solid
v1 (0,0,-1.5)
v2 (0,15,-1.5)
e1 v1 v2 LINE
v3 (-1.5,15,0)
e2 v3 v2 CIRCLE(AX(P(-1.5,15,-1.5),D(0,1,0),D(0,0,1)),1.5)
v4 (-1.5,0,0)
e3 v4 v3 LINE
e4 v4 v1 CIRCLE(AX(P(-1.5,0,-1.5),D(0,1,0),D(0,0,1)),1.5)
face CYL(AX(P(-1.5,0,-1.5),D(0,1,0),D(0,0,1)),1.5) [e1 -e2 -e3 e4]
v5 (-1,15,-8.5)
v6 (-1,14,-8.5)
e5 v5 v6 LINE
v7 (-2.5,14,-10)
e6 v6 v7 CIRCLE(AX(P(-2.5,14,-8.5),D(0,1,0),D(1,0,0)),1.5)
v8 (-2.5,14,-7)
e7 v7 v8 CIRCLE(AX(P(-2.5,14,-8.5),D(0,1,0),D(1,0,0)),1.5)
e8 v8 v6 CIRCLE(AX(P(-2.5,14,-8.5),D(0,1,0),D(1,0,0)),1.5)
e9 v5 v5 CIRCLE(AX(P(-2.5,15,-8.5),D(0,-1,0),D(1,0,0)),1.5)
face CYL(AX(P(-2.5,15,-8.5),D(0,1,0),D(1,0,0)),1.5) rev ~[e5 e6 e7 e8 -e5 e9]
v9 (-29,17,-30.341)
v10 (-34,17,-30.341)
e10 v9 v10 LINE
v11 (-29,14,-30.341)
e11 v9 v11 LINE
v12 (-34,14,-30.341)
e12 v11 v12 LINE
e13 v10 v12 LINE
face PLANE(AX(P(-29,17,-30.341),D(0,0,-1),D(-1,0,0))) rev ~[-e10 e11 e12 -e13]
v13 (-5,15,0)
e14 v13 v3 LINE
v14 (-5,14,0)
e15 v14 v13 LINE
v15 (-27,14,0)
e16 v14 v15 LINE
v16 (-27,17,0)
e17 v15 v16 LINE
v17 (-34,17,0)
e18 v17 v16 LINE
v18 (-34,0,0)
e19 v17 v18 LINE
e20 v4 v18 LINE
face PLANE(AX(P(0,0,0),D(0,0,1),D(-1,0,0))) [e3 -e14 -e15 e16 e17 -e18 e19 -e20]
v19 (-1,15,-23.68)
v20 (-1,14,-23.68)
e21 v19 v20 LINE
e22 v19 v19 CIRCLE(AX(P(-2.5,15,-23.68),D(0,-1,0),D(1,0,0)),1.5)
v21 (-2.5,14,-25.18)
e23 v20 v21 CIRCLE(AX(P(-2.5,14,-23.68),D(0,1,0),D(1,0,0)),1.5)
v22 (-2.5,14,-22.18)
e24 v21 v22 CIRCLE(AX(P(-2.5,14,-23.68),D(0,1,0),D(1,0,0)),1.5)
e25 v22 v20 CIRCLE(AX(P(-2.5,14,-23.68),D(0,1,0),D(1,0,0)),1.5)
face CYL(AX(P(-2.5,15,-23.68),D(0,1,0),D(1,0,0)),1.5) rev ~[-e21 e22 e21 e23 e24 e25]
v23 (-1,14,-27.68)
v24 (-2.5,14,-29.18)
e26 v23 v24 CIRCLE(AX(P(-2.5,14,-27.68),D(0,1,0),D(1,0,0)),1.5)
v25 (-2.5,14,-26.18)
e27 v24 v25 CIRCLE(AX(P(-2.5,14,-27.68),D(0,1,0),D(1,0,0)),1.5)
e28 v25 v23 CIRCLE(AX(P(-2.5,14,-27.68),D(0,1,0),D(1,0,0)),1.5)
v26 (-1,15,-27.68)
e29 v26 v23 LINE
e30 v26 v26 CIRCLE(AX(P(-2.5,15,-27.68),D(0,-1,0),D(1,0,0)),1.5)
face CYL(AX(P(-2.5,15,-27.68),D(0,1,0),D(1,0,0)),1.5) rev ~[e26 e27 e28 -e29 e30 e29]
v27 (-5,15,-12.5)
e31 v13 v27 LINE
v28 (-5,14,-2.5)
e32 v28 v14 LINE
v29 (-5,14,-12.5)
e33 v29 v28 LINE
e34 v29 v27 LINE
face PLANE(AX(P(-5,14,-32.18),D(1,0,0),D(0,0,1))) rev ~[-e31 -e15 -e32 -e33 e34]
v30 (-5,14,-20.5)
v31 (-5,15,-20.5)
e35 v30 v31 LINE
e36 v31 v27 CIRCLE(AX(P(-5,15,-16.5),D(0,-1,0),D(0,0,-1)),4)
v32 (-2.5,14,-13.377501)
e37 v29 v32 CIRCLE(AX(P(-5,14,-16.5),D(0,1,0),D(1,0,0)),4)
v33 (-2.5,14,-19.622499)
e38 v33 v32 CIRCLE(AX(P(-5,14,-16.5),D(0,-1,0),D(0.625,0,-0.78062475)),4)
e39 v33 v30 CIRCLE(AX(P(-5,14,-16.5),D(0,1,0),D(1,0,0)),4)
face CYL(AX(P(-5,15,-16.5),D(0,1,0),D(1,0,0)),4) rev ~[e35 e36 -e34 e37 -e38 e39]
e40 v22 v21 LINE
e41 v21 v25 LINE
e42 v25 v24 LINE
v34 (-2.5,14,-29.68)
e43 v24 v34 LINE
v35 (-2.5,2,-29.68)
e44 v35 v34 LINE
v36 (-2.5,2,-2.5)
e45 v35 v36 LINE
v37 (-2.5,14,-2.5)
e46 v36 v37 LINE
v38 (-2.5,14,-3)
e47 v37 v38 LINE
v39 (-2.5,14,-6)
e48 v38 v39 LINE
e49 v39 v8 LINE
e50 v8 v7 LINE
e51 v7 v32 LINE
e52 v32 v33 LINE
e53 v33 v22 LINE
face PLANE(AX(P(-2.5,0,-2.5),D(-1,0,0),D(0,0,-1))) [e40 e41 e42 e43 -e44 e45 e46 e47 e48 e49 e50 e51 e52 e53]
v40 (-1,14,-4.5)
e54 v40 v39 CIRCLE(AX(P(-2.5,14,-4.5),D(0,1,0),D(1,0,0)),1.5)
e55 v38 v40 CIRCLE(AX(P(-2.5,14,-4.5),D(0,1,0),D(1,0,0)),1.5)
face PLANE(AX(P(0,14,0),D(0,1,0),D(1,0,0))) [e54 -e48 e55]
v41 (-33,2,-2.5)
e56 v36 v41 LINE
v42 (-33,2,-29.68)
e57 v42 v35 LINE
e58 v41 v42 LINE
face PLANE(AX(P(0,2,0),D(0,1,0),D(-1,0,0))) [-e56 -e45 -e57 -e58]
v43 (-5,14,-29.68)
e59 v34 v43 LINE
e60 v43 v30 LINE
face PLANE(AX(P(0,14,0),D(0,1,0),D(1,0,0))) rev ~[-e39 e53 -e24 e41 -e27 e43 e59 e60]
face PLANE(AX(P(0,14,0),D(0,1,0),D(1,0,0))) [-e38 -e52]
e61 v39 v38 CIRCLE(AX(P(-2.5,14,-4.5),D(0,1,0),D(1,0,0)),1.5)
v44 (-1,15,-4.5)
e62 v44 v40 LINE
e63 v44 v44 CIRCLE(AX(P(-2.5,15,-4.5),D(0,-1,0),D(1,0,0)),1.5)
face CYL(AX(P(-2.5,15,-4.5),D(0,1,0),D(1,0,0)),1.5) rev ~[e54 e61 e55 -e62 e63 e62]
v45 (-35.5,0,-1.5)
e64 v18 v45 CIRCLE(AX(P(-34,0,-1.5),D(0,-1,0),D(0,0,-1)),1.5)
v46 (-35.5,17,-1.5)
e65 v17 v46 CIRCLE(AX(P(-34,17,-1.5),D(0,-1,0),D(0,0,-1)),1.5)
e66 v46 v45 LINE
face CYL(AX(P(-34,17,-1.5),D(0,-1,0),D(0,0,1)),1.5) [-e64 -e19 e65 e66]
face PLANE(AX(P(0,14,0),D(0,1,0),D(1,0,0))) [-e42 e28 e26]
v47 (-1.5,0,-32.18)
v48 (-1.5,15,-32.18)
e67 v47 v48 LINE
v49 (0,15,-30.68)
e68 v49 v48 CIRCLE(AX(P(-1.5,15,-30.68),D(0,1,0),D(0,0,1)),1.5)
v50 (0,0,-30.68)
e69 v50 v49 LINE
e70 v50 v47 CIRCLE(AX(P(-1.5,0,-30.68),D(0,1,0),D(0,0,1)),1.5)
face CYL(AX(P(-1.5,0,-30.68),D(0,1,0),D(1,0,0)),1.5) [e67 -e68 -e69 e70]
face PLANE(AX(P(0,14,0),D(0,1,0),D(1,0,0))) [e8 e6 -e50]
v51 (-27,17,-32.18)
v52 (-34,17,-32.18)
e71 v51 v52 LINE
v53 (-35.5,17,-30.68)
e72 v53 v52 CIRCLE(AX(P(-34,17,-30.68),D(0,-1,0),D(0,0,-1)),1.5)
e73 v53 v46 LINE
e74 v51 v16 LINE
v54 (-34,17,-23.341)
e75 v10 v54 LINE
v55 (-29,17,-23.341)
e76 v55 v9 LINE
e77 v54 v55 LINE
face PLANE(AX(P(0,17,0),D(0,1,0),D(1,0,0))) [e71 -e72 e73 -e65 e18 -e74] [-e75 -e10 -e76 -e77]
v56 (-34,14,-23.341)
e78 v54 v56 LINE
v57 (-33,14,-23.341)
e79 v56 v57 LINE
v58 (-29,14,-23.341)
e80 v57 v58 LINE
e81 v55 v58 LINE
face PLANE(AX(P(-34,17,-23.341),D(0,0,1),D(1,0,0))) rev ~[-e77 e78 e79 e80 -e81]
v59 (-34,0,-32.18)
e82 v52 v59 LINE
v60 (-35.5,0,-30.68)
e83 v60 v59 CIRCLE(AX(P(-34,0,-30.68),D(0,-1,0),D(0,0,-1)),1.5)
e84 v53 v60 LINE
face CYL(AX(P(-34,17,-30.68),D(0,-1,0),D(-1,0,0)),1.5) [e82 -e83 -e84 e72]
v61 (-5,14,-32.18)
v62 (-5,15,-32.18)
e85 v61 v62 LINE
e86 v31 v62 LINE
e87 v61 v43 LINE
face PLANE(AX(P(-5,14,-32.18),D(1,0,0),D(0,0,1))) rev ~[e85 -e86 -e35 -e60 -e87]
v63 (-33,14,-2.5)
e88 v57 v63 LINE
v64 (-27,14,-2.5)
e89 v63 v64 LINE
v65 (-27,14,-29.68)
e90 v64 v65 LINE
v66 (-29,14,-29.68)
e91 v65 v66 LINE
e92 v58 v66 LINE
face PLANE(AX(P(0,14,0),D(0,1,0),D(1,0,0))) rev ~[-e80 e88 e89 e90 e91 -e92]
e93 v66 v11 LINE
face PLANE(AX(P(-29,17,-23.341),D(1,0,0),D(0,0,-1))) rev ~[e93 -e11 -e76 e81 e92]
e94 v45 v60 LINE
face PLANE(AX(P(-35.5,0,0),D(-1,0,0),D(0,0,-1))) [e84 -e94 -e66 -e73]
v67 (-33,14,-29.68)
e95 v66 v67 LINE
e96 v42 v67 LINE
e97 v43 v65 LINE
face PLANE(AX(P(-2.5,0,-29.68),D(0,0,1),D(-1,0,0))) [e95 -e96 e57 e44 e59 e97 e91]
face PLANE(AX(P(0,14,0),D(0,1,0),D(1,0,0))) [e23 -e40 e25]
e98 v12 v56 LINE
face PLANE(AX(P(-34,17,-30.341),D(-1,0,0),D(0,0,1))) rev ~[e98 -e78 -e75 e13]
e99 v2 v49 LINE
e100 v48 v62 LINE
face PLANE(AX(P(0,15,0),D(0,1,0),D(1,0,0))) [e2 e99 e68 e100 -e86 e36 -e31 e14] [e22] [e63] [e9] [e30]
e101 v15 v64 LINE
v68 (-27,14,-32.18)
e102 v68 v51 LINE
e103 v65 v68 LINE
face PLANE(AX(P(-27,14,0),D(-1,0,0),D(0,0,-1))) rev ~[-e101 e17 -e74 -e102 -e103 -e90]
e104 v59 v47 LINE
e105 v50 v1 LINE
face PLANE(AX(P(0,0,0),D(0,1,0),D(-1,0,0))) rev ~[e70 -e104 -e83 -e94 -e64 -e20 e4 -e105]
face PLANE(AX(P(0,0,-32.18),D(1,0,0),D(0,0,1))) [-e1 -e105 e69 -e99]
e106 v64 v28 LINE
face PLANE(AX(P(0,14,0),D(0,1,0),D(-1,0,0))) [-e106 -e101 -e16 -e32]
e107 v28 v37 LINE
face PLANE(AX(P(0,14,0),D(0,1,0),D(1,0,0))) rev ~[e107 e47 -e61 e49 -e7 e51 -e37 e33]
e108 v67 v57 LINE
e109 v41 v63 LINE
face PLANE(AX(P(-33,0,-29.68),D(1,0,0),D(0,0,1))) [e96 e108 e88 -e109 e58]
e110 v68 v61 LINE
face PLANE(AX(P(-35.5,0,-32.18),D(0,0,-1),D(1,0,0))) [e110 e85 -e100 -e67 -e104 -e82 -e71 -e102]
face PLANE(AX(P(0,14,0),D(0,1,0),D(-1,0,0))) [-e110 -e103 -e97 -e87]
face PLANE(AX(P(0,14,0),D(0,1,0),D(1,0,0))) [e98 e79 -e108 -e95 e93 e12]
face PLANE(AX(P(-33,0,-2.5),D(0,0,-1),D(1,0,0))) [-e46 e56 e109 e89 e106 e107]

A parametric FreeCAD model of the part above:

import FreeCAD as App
import Part
import Sketcher
Q = App.Units.Quantity


def edges_at(feature, points):
    """Names of the edges that pass closest to the given points."""
    edges = feature.Shape.Edges
    near = lambda p: min(range(len(edges)), key=lambda i: edges[i].distToShape(Part.Vertex(*p))[0])
    return sorted({f"Edge{near(p) + 1}" for p in points})

doc = App.newDocument("Part")
params = doc.addObject("Spreadsheet::Sheet", "Params")
for row, (alias, value) in enumerate([
    ("sketch1_width", "35.5 mm"),
    ("sketch1_height", "32.18 mm"),
    ("pad1_length", "2 mm"),
    ("sketch2_width", "35.5 mm"),
    ("sketch2_height", "32.18 mm"),
    ("pad2_length", "14 mm"),
    ("sketch3_width", "8.5 mm"),
    ("sketch3_height", "32.18 mm"),
    ("pad3_length", "3 mm"),
    ("sketch4_width", "5 mm"),
    ("sketch4_height", "7 mm"),
    ("pocket1_length", "3 mm"),
    ("sketch5_width", "5 mm"),
    ("sketch5_height", "32.18 mm"),
    ("pad4_length", "1 mm"),
    ("sketch6_diameter", "8 mm"),
    ("sketch6_diameter2", "3 mm"),
    ("pocket2_length", "1 mm"),
    ("fillet_radius", "1.5 mm"),
], start=1):
    params.set(f"A{row}", alias)
    params.set(f"B{row}", "=" + value)
    params.setAlias(f"B{row}", alias)

body = doc.addObject("PartDesign::Body", "Body")

sketch1 = body.newObject("Sketcher::SketchObject", "Sketch")
sketch1.AttachmentSupport = (doc.getObject("XZ_Plane"), [""])
sketch1.MapMode = "FlatFace"
sketch1.addGeometry([
    Part.LineSegment(App.Vector(-35.5, 0, 0), App.Vector(0, 0, 0)),
    Part.LineSegment(App.Vector(0, 0, 0), App.Vector(0, -32.18, 0)),
    Part.LineSegment(App.Vector(0, -32.18, 0), App.Vector(-35.5, -32.18, 0)),
    Part.LineSegment(App.Vector(-35.5, -32.18, 0), App.Vector(-35.5, 0, 0)),
], False)
sketch1.addConstraint([
    Sketcher.Constraint("Coincident", 0, 2, 1, 1),
    Sketcher.Constraint("Coincident", 1, 2, 2, 1),
    Sketcher.Constraint("Coincident", 2, 2, 3, 1),
    Sketcher.Constraint("Coincident", 3, 2, 0, 1),
    Sketcher.Constraint("Horizontal", 0),
    Sketcher.Constraint("Vertical", 1),
    Sketcher.Constraint("Horizontal", 2),
    Sketcher.Constraint("Vertical", 3),
    Sketcher.Constraint("Coincident", 0, 2, -1, 1),
    Sketcher.Constraint("DistanceX", 0, 1, 0, 2, Q("35.5 mm")),
    Sketcher.Constraint("DistanceY", 1, 2, 1, 1, Q("32.18 mm")),
])
sketch1.setExpression("Constraints[9]", "Params.sketch1_width")
sketch1.setExpression("Constraints[10]", "Params.sketch1_height")
pad1 = body.newObject("PartDesign::Pad", "Pad")
pad1.Profile = sketch1
pad1.setExpression("Length", "Params.pad1_length")
pad1.Reversed = True

sketch2 = body.newObject("Sketcher::SketchObject", "Sketch001")
sketch2.AttachmentSupport = (doc.getObject("XZ_Plane"), [""])
sketch2.MapMode = "FlatFace"
sketch2.addGeometry([
    Part.LineSegment(App.Vector(-35.5, 0, 0), App.Vector(0, 0, 0)),
    Part.LineSegment(App.Vector(0, 0, 0), App.Vector(0, -32.18, 0)),
    Part.LineSegment(App.Vector(0, -32.18, 0), App.Vector(-35.5, -32.18, 0)),
    Part.LineSegment(App.Vector(-35.5, -32.18, 0), App.Vector(-35.5, 0, 0)),
    Part.LineSegment(App.Vector(-2.5, -2.5, 0), App.Vector(-33, -2.5, 0)),
    Part.LineSegment(App.Vector(-33, -2.5, 0), App.Vector(-33, -29.68, 0)),
    Part.LineSegment(App.Vector(-33, -29.68, 0), App.Vector(-2.5, -29.68, 0)),
    Part.LineSegment(App.Vector(-2.5, -29.68, 0), App.Vector(-2.5, -2.5, 0)),
], False)
sketch2.addConstraint([
    Sketcher.Constraint("Coincident", 0, 2, 1, 1),
    Sketcher.Constraint("Coincident", 1, 2, 2, 1),
    Sketcher.Constraint("Coincident", 2, 2, 3, 1),
    Sketcher.Constraint("Coincident", 3, 2, 0, 1),
    Sketcher.Constraint("Coincident", 4, 2, 5, 1),
    Sketcher.Constraint("Coincident", 5, 2, 6, 1),
    Sketcher.Constraint("Coincident", 6, 2, 7, 1),
    Sketcher.Constraint("Coincident", 7, 2, 4, 1),
    Sketcher.Constraint("Horizontal", 0),
    Sketcher.Constraint("Vertical", 1),
    Sketcher.Constraint("Horizontal", 2),
    Sketcher.Constraint("Vertical", 3),
    Sketcher.Constraint("Horizontal", 4),
    Sketcher.Constraint("Vertical", 5),
    Sketcher.Constraint("Horizontal", 6),
    Sketcher.Constraint("Vertical", 7),
    Sketcher.Constraint("Coincident", 0, 2, -1, 1),
    Sketcher.Constraint("DistanceX", 0, 1, 0, 2, Q("35.5 mm")),
    Sketcher.Constraint("DistanceY", 1, 2, 1, 1, Q("32.18 mm")),
    Sketcher.Constraint("DistanceY", 4, 2, -1, 1, Q("2.5 mm")),
    Sketcher.Constraint("DistanceX", 6, 2, -1, 1, Q("2.5 mm")),
    Sketcher.Constraint("DistanceX", 3, 2, 4, 2, Q("2.5 mm")),
    Sketcher.Constraint("DistanceY", 2, 2, 5, 2, Q("2.5 mm")),
])
sketch2.setExpression("Constraints[17]", "Params.sketch2_width")
sketch2.setExpression("Constraints[18]", "Params.sketch2_height")
pad2 = body.newObject("PartDesign::Pad", "Pad001")
pad2.Profile = sketch2
pad2.setExpression("Length", "Params.pad2_length")
pad2.Reversed = True

sketch3 = body.newObject("Sketcher::SketchObject", "Sketch002")
sketch3.AttachmentSupport = (doc.getObject("XZ_Plane"), [""])
sketch3.MapMode = "FlatFace"
sketch3.AttachmentOffset = App.Placement(App.Vector(0, 0, -14), App.Rotation())
sketch3.addGeometry([
    Part.LineSegment(App.Vector(-27, 0, 0), App.Vector(-27, -32.18, 0)),
    Part.LineSegment(App.Vector(-27, -32.18, 0), App.Vector(-35.5, -32.18, 0)),
    Part.LineSegment(App.Vector(-35.5, -32.18, 0), App.Vector(-35.5, 0, 0)),
    Part.LineSegment(App.Vector(-35.5, 0, 0), App.Vector(-27, 0, 0)),
], False)
sketch3.addConstraint([
    Sketcher.Constraint("Coincident", 0, 2, 1, 1),
    Sketcher.Constraint("Coincident", 1, 2, 2, 1),
    Sketcher.Constraint("Coincident", 2, 2, 3, 1),
    Sketcher.Constraint("Coincident", 3, 2, 0, 1),
    Sketcher.Constraint("Vertical", 0),
    Sketcher.Constraint("Horizontal", 1),
    Sketcher.Constraint("Vertical", 2),
    Sketcher.Constraint("Horizontal", 3),
    Sketcher.Constraint("PointOnObject", 2, 2, -1),
    Sketcher.Constraint("DistanceX", 1, 2, 1, 1, Q("8.5 mm")),
    Sketcher.Constraint("DistanceX", 0, 2, -1, 1, Q("27 mm")),
    Sketcher.Constraint("DistanceY", 0, 2, 0, 1, Q("32.18 mm")),
])
sketch3.setExpression("Constraints[9]", "Params.sketch3_width")
sketch3.setExpression("Constraints[11]", "Params.sketch3_height")
pad3 = body.newObject("PartDesign::Pad", "Pad002")
pad3.Profile = sketch3
pad3.setExpression("Length", "Params.pad3_length")
pad3.Reversed = True

sketch4 = body.newObject("Sketcher::SketchObject", "Sketch003")
sketch4.AttachmentSupport = (doc.getObject("XZ_Plane"), [""])
sketch4.MapMode = "FlatFace"
sketch4.AttachmentOffset = App.Placement(App.Vector(0, 0, -17), App.Rotation())
sketch4.addGeometry([
    Part.LineSegment(App.Vector(-34, -30.341, 0), App.Vector(-34, -23.341, 0)),
    Part.LineSegment(App.Vector(-34, -23.341, 0), App.Vector(-29, -23.341, 0)),
    Part.LineSegment(App.Vector(-29, -23.341, 0), App.Vector(-29, -30.341, 0)),
    Part.LineSegment(App.Vector(-29, -30.341, 0), App.Vector(-34, -30.341, 0)),
], False)
sketch4.addConstraint([
    Sketcher.Constraint("Coincident", 0, 2, 1, 1),
    Sketcher.Constraint("Coincident", 1, 2, 2, 1),
    Sketcher.Constraint("Coincident", 2, 2, 3, 1),
    Sketcher.Constraint("Coincident", 3, 2, 0, 1),
    Sketcher.Constraint("Vertical", 0),
    Sketcher.Constraint("Horizontal", 1),
    Sketcher.Constraint("Vertical", 2),
    Sketcher.Constraint("Horizontal", 3),
    Sketcher.Constraint("DistanceX", 1, 1, 1, 2, Q("5 mm")),
    Sketcher.Constraint("DistanceY", 0, 1, 0, 2, Q("7 mm")),
    Sketcher.Constraint("DistanceX", 0, 2, -1, 1, Q("34 mm")),
    Sketcher.Constraint("DistanceY", 0, 2, -1, 1, Q("23.341 mm")),
])
sketch4.setExpression("Constraints[8]", "Params.sketch4_width")
sketch4.setExpression("Constraints[9]", "Params.sketch4_height")
pocket1 = body.newObject("PartDesign::Pocket", "Pocket")
pocket1.Profile = sketch4
pocket1.setExpression("Length", "Params.pocket1_length")
pocket1.Reversed = True

sketch5 = body.newObject("Sketcher::SketchObject", "Sketch004")
sketch5.AttachmentSupport = (doc.getObject("XZ_Plane"), [""])
sketch5.MapMode = "FlatFace"
sketch5.AttachmentOffset = App.Placement(App.Vector(0, 0, -14), App.Rotation())
sketch5.addGeometry([
    Part.LineSegment(App.Vector(0, -32.18, 0), App.Vector(-5, -32.18, 0)),
    Part.LineSegment(App.Vector(-5, -32.18, 0), App.Vector(-5, 0, 0)),
    Part.LineSegment(App.Vector(-5, 0, 0), App.Vector(0, 0, 0)),
    Part.LineSegment(App.Vector(0, 0, 0), App.Vector(0, -32.18, 0)),
], False)
sketch5.addConstraint([
    Sketcher.Constraint("Coincident", 0, 2, 1, 1),
    Sketcher.Constraint("Coincident", 1, 2, 2, 1),
    Sketcher.Constraint("Coincident", 2, 2, 3, 1),
    Sketcher.Constraint("Coincident", 3, 2, 0, 1),
    Sketcher.Constraint("Horizontal", 0),
    Sketcher.Constraint("Vertical", 1),
    Sketcher.Constraint("Horizontal", 2),
    Sketcher.Constraint("Vertical", 3),
    Sketcher.Constraint("Coincident", 2, 2, -1, 1),
    Sketcher.Constraint("DistanceX", 0, 2, 0, 1, Q("5 mm")),
    Sketcher.Constraint("DistanceY", 1, 1, 1, 2, Q("32.18 mm")),
])
sketch5.setExpression("Constraints[9]", "Params.sketch5_width")
sketch5.setExpression("Constraints[10]", "Params.sketch5_height")
pad4 = body.newObject("PartDesign::Pad", "Pad003")
pad4.Profile = sketch5
pad4.setExpression("Length", "Params.pad4_length")
pad4.Reversed = True

sketch6 = body.newObject("Sketcher::SketchObject", "Sketch005")
sketch6.AttachmentSupport = (doc.getObject("XZ_Plane"), [""])
sketch6.MapMode = "FlatFace"
sketch6.AttachmentOffset = App.Placement(App.Vector(0, 0, -15), App.Rotation())
sketch6.addGeometry([
    Part.Circle(App.Vector(-5, -16.5, 0), App.Vector(0, 0, 1), 4),
    Part.Circle(App.Vector(-2.5, -27.68, 0), App.Vector(0, 0, 1), 1.5),
    Part.Circle(App.Vector(-2.5, -23.68, 0), App.Vector(0, 0, 1), 1.5),
    Part.Circle(App.Vector(-2.5, -4.5, 0), App.Vector(0, 0, 1), 1.5),
    Part.Circle(App.Vector(-2.5, -8.5, 0), App.Vector(0, 0, 1), 1.5),
], False)
sketch6.addConstraint([
    Sketcher.Constraint("Equal", 1, 2),
    Sketcher.Constraint("Equal", 2, 3),
    Sketcher.Constraint("Equal", 3, 4),
    Sketcher.Constraint("Vertical", 1, 3, 2, 3),
    Sketcher.Constraint("Vertical", 2, 3, 3, 3),
    Sketcher.Constraint("Vertical", 3, 3, 4, 3),
    Sketcher.Constraint("Diameter", 0, Q("8 mm")),
    Sketcher.Constraint("Diameter", 1, Q("3 mm")),
    Sketcher.Constraint("DistanceY", 0, 3, 4, 3, Q("8 mm")),
    Sketcher.Constraint("DistanceY", 3, 3, -1, 1, Q("4.5 mm")),
    Sketcher.Constraint("DistanceY", 4, 3, -1, 1, Q("8.5 mm")),
    Sketcher.Constraint("DistanceX", 0, 3, -1, 1, Q("5 mm")),
    Sketcher.Constraint("DistanceY", 1, 3, 2, 3, Q("4 mm")),
    Sketcher.Constraint("DistanceX", 1, 3, -1, 1, Q("2.5 mm")),
    Sketcher.Constraint("DistanceY", 1, 3, -1, 1, Q("27.68 mm")),
])
sketch6.setExpression("Constraints[6]", "Params.sketch6_diameter")
sketch6.setExpression("Constraints[7]", "Params.sketch6_diameter2")
pocket2 = body.newObject("PartDesign::Pocket", "Pocket001")
pocket2.Profile = sketch6
pocket2.setExpression("Length", "Params.pocket2_length")
pocket2.Reversed = True
doc.recompute()

fillet = body.newObject("PartDesign::Fillet", "Fillet")
fillet.Base = (pocket2, edges_at(pocket2, [
    (0, 7.5, -32.18),
    (-35.5, 8.5, -32.18),
    (-35.5, 8.5, 0),
    (0, 7.5, 0),
]))
fillet.setExpression("Radius", "Params.fillet_radius")

doc.recompute()
